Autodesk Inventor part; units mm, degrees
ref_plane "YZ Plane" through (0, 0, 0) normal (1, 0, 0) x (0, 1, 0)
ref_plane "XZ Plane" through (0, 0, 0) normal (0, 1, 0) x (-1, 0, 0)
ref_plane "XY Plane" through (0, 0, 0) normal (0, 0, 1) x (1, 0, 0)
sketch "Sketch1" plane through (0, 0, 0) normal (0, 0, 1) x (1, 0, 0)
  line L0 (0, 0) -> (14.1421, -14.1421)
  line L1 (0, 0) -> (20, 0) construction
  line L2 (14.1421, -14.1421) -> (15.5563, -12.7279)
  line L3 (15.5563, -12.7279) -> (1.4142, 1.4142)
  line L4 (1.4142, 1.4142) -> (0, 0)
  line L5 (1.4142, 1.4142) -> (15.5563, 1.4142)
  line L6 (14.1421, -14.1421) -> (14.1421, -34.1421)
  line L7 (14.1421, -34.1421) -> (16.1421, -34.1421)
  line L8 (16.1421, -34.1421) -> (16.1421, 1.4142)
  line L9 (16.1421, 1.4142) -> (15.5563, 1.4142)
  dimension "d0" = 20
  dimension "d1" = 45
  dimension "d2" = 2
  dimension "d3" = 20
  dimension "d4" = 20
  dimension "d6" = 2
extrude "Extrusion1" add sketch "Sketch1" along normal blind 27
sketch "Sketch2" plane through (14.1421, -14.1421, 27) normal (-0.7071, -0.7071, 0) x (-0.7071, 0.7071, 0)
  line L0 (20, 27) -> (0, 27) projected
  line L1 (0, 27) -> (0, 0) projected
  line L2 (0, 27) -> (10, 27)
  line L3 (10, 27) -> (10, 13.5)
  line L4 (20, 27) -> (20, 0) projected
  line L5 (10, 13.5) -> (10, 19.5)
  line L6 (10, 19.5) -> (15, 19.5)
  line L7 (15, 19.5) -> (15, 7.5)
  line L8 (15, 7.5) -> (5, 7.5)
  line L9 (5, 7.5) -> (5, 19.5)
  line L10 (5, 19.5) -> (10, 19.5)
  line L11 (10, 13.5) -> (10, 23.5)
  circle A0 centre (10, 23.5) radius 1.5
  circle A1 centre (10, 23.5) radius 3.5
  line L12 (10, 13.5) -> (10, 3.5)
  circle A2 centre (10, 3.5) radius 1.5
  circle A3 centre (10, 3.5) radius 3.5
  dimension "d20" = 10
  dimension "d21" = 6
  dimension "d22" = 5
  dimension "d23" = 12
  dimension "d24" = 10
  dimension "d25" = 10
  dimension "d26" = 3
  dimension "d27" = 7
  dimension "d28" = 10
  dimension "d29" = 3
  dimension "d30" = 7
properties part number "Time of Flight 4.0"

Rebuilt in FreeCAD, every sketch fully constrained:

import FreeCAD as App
import Part
import Sketcher

V = App.Vector
Q = App.Units.Quantity


def add_polygon(sketch, points):
    """Adds a closed chain of lines whose ends are joined by coincident constraints."""
    first, n = sketch.GeometryCount, len(points)
    for a, b in zip(points, points[1:] + points[:1]):
        sketch.addGeometry(Part.LineSegment(App.Vector(*a, 0), App.Vector(*b, 0)), False)
    for i in range(n):
        sketch.addConstraint(Sketcher.Constraint("Coincident", first + i, 2, first + (i + 1) % n, 1))

doc = App.newDocument("Part")
body = doc.addObject("PartDesign::Body", "Body")

# Sketch on XY plane
sketch1 = doc.addObject("Sketcher::SketchObject", "Sketch")
body.addObject(sketch1)
sketch1.AttachmentSupport = (doc.XY_Plane, [""])
sketch1.MapMode = "FlatFace"
add_polygon(sketch1, [(1.4, 1.4), (0, 0), (14.1, -14.1), (14.1, -34.1), (16.1, -34.1), (16.1, 1.4)])  # lines 0-5
sketch1.addConstraint(Sketcher.Constraint("Vertical", 2))
sketch1.addConstraint(Sketcher.Constraint("Horizontal", 3))
sketch1.addConstraint(Sketcher.Constraint("Vertical", 4))
sketch1.addConstraint(Sketcher.Constraint("Horizontal", 5))
sketch1.addConstraint(Sketcher.Constraint("Coincident", 0, 2, -1, 1))
sketch1.addConstraint(Sketcher.Constraint("Perpendicular", 0, 1))
sketch1.addConstraint(Sketcher.Constraint("DistanceX", 3, 1, 3, 2, Q("2 mm")))
sketch1.addConstraint(Sketcher.Constraint("DistanceY", 2, 2, 2, 1, Q("20 mm")))
sketch1.addConstraint(Sketcher.Constraint("Angle", 1, Q("-45 deg")))
sketch1.addConstraint(Sketcher.Constraint("Distance", 0, Q("2 mm")))
sketch1.addConstraint(Sketcher.Constraint("Distance", 1, Q("20 mm")))
pad1 = doc.addObject("PartDesign::Pad", "Pad")
body.addObject(pad1)
pad1.Profile = sketch1
pad1.Length = 27

doc.recompute()
